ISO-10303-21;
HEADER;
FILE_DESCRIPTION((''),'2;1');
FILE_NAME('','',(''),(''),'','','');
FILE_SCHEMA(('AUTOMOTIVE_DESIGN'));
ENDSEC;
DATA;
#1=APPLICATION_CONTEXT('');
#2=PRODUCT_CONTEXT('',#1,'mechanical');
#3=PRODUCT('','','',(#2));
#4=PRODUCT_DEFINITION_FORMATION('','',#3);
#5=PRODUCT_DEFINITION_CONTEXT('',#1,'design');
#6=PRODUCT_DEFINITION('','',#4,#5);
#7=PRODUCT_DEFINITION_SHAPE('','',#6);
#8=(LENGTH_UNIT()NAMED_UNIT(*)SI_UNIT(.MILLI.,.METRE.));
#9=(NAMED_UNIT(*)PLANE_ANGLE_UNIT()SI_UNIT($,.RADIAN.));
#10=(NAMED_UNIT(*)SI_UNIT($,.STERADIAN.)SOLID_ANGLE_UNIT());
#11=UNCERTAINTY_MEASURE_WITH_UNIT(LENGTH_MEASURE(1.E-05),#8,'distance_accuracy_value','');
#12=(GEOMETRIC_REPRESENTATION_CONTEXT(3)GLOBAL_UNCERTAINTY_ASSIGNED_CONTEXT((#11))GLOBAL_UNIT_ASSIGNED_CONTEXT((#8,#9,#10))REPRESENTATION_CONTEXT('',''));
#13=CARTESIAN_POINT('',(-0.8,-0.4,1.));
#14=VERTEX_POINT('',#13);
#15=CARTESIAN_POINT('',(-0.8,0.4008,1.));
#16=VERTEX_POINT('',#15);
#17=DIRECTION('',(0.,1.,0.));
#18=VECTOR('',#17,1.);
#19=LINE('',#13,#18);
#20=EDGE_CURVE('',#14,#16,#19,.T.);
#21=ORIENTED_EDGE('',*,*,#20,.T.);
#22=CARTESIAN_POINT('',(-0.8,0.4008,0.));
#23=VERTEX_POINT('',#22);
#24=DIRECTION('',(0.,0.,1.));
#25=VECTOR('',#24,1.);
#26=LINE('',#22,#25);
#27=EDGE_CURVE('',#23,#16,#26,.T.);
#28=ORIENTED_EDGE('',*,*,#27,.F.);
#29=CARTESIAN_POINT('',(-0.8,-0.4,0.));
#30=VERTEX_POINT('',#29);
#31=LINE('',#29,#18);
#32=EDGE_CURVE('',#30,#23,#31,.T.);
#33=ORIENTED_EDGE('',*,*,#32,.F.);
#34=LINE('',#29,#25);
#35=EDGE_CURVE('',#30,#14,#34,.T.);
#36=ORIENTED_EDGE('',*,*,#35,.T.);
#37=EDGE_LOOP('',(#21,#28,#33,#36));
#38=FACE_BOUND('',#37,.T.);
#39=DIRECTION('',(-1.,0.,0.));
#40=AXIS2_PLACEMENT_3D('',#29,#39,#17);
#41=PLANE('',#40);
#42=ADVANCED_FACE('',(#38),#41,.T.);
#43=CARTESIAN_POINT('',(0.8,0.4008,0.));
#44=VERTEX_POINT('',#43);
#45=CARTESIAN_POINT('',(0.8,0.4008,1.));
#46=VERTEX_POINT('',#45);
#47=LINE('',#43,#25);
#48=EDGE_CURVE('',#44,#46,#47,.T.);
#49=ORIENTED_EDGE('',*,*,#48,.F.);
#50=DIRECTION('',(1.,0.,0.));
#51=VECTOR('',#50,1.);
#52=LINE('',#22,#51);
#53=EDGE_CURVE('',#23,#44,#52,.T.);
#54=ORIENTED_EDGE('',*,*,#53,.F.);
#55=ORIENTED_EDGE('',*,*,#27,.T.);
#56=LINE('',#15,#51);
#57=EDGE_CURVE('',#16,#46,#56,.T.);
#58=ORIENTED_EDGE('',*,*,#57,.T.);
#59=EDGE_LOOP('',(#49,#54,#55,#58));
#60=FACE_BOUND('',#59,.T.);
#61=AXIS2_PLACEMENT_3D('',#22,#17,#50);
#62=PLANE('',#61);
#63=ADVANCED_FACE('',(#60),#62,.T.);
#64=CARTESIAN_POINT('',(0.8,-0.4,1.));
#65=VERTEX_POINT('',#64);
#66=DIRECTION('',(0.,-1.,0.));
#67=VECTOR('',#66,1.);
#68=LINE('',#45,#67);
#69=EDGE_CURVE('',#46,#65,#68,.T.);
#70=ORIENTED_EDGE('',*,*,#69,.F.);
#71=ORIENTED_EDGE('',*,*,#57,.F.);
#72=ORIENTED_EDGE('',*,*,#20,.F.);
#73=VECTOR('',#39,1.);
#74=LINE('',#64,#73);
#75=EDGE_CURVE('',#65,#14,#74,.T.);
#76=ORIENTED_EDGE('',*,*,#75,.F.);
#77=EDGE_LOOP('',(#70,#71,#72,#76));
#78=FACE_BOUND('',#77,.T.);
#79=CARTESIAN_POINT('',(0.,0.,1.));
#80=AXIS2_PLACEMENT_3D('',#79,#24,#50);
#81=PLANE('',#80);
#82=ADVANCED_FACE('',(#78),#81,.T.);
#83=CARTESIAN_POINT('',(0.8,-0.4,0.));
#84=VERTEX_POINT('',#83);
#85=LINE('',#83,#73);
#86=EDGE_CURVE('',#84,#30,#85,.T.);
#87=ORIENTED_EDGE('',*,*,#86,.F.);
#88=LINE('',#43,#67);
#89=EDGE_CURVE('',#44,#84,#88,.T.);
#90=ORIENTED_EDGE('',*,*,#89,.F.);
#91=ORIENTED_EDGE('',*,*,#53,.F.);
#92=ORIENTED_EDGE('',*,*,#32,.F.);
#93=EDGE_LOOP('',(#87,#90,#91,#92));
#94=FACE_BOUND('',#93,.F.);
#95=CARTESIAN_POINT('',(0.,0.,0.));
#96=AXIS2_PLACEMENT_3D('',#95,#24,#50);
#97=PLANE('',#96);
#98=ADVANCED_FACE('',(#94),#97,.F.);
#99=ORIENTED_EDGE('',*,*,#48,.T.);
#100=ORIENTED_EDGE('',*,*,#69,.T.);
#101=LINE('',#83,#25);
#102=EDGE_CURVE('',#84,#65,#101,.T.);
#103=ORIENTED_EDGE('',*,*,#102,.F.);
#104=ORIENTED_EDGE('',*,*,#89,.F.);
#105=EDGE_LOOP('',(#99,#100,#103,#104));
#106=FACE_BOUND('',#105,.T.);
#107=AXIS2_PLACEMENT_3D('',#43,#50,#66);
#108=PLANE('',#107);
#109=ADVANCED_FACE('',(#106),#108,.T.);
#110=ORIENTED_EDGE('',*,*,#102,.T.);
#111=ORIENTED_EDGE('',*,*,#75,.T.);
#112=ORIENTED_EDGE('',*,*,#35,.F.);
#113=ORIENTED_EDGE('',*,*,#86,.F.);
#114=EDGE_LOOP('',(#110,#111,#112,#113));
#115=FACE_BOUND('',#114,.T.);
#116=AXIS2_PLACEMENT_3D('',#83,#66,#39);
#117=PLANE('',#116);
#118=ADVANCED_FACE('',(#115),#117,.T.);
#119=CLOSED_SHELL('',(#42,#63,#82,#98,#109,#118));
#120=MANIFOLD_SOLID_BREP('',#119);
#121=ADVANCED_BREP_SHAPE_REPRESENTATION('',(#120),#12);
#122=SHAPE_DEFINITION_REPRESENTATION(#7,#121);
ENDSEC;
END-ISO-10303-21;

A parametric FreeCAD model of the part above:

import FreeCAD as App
import Part
import Sketcher
from FreeCAD import Vector
Q = App.Units.Quantity


def add_polygon(sketch, points):
    """Adds a closed chain of lines whose ends are joined by coincident constraints."""
    first, n = sketch.GeometryCount, len(points)
    for a, b in zip(points, points[1:] + points[:1]):
        sketch.addGeometry(Part.LineSegment(App.Vector(*a, 0), App.Vector(*b, 0)), False)
    for i in range(n):
        sketch.addConstraint(Sketcher.Constraint("Coincident", first + i, 2, first + (i + 1) % n, 1))

doc = App.newDocument("Part")
body = doc.addObject("PartDesign::Body", "Body")

# Sketch on XY plane
sketch1 = body.newObject("Sketcher::SketchObject", "Sketch")
sketch1.AttachmentSupport = (doc.getObject("XY_Plane"), [""])
sketch1.MapMode = "FlatFace"
add_polygon(sketch1, [(0.8, 0.4), (-0.8, 0.4), (-0.8, -0.4), (0.8, -0.4)])  # lines 0-3
sketch1.addConstraint(Sketcher.Constraint("Horizontal", 0))
sketch1.addConstraint(Sketcher.Constraint("Vertical", 1))
sketch1.addConstraint(Sketcher.Constraint("Horizontal", 2))
sketch1.addConstraint(Sketcher.Constraint("Vertical", 3))
sketch1.addConstraint(Sketcher.Constraint("DistanceX", 0, 2, 0, 1, Q("1.6 mm")))
sketch1.addConstraint(Sketcher.Constraint("DistanceX", 0, 2, -1, 1, Q("0.8 mm")))
sketch1.addConstraint(Sketcher.Constraint("DistanceY", 1, 2, -1, 1, Q("0.4 mm")))
sketch1.addConstraint(Sketcher.Constraint("DistanceY", 1, 2, 1, 1, Q("0.8008 mm")))
pad1 = body.newObject("PartDesign::Pad", "Pad")
pad1.Profile = sketch1
pad1.Length = 1

doc.recompute()
